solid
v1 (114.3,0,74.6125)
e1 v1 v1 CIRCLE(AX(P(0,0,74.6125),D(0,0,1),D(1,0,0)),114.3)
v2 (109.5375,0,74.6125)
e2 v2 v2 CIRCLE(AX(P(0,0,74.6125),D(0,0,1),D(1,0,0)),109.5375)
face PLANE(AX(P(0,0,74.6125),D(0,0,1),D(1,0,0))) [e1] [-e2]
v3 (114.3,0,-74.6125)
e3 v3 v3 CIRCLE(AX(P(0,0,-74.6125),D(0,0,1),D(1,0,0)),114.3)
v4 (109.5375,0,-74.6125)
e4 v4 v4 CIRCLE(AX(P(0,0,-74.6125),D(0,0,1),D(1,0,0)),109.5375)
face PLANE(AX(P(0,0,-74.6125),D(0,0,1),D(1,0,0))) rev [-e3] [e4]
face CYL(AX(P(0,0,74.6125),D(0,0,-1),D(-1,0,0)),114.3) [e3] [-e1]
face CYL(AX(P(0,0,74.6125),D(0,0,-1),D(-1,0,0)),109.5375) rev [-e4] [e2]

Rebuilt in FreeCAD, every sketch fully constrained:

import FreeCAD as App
import Part
import Sketcher

V = App.Vector
Q = App.Units.Quantity

doc = App.newDocument("Part")
body = doc.addObject("PartDesign::Body", "Body")

# Sketch on XY plane
sketch1 = body.newObject("Sketcher::SketchObject", "Sketch")
sketch1.AttachmentSupport = (doc.getObject("XY_Plane"), [""])
sketch1.MapMode = "FlatFace"
sketch1.addGeometry([
    Part.Circle(V(0, 0, 0), V(0, 0, 1), 114),
    Part.Circle(V(0, 0, 0), V(0, 0, 1), 110),
], False)
sketch1.addConstraint([
    Sketcher.Constraint("Coincident", 0, 3, -1, 1),
    Sketcher.Constraint("Coincident", 1, 3, -1, 1),
    Sketcher.Constraint("Diameter", 0, Q("9 in")),
    Sketcher.Constraint("Diameter", 1, Q("8.625 in")),
])
pad1 = body.newObject("PartDesign::Pad", "Pad")
pad1.Profile = sketch1
pad1.Length = Q("5.875 in")
pad1.Midplane = True

doc.recompute()
